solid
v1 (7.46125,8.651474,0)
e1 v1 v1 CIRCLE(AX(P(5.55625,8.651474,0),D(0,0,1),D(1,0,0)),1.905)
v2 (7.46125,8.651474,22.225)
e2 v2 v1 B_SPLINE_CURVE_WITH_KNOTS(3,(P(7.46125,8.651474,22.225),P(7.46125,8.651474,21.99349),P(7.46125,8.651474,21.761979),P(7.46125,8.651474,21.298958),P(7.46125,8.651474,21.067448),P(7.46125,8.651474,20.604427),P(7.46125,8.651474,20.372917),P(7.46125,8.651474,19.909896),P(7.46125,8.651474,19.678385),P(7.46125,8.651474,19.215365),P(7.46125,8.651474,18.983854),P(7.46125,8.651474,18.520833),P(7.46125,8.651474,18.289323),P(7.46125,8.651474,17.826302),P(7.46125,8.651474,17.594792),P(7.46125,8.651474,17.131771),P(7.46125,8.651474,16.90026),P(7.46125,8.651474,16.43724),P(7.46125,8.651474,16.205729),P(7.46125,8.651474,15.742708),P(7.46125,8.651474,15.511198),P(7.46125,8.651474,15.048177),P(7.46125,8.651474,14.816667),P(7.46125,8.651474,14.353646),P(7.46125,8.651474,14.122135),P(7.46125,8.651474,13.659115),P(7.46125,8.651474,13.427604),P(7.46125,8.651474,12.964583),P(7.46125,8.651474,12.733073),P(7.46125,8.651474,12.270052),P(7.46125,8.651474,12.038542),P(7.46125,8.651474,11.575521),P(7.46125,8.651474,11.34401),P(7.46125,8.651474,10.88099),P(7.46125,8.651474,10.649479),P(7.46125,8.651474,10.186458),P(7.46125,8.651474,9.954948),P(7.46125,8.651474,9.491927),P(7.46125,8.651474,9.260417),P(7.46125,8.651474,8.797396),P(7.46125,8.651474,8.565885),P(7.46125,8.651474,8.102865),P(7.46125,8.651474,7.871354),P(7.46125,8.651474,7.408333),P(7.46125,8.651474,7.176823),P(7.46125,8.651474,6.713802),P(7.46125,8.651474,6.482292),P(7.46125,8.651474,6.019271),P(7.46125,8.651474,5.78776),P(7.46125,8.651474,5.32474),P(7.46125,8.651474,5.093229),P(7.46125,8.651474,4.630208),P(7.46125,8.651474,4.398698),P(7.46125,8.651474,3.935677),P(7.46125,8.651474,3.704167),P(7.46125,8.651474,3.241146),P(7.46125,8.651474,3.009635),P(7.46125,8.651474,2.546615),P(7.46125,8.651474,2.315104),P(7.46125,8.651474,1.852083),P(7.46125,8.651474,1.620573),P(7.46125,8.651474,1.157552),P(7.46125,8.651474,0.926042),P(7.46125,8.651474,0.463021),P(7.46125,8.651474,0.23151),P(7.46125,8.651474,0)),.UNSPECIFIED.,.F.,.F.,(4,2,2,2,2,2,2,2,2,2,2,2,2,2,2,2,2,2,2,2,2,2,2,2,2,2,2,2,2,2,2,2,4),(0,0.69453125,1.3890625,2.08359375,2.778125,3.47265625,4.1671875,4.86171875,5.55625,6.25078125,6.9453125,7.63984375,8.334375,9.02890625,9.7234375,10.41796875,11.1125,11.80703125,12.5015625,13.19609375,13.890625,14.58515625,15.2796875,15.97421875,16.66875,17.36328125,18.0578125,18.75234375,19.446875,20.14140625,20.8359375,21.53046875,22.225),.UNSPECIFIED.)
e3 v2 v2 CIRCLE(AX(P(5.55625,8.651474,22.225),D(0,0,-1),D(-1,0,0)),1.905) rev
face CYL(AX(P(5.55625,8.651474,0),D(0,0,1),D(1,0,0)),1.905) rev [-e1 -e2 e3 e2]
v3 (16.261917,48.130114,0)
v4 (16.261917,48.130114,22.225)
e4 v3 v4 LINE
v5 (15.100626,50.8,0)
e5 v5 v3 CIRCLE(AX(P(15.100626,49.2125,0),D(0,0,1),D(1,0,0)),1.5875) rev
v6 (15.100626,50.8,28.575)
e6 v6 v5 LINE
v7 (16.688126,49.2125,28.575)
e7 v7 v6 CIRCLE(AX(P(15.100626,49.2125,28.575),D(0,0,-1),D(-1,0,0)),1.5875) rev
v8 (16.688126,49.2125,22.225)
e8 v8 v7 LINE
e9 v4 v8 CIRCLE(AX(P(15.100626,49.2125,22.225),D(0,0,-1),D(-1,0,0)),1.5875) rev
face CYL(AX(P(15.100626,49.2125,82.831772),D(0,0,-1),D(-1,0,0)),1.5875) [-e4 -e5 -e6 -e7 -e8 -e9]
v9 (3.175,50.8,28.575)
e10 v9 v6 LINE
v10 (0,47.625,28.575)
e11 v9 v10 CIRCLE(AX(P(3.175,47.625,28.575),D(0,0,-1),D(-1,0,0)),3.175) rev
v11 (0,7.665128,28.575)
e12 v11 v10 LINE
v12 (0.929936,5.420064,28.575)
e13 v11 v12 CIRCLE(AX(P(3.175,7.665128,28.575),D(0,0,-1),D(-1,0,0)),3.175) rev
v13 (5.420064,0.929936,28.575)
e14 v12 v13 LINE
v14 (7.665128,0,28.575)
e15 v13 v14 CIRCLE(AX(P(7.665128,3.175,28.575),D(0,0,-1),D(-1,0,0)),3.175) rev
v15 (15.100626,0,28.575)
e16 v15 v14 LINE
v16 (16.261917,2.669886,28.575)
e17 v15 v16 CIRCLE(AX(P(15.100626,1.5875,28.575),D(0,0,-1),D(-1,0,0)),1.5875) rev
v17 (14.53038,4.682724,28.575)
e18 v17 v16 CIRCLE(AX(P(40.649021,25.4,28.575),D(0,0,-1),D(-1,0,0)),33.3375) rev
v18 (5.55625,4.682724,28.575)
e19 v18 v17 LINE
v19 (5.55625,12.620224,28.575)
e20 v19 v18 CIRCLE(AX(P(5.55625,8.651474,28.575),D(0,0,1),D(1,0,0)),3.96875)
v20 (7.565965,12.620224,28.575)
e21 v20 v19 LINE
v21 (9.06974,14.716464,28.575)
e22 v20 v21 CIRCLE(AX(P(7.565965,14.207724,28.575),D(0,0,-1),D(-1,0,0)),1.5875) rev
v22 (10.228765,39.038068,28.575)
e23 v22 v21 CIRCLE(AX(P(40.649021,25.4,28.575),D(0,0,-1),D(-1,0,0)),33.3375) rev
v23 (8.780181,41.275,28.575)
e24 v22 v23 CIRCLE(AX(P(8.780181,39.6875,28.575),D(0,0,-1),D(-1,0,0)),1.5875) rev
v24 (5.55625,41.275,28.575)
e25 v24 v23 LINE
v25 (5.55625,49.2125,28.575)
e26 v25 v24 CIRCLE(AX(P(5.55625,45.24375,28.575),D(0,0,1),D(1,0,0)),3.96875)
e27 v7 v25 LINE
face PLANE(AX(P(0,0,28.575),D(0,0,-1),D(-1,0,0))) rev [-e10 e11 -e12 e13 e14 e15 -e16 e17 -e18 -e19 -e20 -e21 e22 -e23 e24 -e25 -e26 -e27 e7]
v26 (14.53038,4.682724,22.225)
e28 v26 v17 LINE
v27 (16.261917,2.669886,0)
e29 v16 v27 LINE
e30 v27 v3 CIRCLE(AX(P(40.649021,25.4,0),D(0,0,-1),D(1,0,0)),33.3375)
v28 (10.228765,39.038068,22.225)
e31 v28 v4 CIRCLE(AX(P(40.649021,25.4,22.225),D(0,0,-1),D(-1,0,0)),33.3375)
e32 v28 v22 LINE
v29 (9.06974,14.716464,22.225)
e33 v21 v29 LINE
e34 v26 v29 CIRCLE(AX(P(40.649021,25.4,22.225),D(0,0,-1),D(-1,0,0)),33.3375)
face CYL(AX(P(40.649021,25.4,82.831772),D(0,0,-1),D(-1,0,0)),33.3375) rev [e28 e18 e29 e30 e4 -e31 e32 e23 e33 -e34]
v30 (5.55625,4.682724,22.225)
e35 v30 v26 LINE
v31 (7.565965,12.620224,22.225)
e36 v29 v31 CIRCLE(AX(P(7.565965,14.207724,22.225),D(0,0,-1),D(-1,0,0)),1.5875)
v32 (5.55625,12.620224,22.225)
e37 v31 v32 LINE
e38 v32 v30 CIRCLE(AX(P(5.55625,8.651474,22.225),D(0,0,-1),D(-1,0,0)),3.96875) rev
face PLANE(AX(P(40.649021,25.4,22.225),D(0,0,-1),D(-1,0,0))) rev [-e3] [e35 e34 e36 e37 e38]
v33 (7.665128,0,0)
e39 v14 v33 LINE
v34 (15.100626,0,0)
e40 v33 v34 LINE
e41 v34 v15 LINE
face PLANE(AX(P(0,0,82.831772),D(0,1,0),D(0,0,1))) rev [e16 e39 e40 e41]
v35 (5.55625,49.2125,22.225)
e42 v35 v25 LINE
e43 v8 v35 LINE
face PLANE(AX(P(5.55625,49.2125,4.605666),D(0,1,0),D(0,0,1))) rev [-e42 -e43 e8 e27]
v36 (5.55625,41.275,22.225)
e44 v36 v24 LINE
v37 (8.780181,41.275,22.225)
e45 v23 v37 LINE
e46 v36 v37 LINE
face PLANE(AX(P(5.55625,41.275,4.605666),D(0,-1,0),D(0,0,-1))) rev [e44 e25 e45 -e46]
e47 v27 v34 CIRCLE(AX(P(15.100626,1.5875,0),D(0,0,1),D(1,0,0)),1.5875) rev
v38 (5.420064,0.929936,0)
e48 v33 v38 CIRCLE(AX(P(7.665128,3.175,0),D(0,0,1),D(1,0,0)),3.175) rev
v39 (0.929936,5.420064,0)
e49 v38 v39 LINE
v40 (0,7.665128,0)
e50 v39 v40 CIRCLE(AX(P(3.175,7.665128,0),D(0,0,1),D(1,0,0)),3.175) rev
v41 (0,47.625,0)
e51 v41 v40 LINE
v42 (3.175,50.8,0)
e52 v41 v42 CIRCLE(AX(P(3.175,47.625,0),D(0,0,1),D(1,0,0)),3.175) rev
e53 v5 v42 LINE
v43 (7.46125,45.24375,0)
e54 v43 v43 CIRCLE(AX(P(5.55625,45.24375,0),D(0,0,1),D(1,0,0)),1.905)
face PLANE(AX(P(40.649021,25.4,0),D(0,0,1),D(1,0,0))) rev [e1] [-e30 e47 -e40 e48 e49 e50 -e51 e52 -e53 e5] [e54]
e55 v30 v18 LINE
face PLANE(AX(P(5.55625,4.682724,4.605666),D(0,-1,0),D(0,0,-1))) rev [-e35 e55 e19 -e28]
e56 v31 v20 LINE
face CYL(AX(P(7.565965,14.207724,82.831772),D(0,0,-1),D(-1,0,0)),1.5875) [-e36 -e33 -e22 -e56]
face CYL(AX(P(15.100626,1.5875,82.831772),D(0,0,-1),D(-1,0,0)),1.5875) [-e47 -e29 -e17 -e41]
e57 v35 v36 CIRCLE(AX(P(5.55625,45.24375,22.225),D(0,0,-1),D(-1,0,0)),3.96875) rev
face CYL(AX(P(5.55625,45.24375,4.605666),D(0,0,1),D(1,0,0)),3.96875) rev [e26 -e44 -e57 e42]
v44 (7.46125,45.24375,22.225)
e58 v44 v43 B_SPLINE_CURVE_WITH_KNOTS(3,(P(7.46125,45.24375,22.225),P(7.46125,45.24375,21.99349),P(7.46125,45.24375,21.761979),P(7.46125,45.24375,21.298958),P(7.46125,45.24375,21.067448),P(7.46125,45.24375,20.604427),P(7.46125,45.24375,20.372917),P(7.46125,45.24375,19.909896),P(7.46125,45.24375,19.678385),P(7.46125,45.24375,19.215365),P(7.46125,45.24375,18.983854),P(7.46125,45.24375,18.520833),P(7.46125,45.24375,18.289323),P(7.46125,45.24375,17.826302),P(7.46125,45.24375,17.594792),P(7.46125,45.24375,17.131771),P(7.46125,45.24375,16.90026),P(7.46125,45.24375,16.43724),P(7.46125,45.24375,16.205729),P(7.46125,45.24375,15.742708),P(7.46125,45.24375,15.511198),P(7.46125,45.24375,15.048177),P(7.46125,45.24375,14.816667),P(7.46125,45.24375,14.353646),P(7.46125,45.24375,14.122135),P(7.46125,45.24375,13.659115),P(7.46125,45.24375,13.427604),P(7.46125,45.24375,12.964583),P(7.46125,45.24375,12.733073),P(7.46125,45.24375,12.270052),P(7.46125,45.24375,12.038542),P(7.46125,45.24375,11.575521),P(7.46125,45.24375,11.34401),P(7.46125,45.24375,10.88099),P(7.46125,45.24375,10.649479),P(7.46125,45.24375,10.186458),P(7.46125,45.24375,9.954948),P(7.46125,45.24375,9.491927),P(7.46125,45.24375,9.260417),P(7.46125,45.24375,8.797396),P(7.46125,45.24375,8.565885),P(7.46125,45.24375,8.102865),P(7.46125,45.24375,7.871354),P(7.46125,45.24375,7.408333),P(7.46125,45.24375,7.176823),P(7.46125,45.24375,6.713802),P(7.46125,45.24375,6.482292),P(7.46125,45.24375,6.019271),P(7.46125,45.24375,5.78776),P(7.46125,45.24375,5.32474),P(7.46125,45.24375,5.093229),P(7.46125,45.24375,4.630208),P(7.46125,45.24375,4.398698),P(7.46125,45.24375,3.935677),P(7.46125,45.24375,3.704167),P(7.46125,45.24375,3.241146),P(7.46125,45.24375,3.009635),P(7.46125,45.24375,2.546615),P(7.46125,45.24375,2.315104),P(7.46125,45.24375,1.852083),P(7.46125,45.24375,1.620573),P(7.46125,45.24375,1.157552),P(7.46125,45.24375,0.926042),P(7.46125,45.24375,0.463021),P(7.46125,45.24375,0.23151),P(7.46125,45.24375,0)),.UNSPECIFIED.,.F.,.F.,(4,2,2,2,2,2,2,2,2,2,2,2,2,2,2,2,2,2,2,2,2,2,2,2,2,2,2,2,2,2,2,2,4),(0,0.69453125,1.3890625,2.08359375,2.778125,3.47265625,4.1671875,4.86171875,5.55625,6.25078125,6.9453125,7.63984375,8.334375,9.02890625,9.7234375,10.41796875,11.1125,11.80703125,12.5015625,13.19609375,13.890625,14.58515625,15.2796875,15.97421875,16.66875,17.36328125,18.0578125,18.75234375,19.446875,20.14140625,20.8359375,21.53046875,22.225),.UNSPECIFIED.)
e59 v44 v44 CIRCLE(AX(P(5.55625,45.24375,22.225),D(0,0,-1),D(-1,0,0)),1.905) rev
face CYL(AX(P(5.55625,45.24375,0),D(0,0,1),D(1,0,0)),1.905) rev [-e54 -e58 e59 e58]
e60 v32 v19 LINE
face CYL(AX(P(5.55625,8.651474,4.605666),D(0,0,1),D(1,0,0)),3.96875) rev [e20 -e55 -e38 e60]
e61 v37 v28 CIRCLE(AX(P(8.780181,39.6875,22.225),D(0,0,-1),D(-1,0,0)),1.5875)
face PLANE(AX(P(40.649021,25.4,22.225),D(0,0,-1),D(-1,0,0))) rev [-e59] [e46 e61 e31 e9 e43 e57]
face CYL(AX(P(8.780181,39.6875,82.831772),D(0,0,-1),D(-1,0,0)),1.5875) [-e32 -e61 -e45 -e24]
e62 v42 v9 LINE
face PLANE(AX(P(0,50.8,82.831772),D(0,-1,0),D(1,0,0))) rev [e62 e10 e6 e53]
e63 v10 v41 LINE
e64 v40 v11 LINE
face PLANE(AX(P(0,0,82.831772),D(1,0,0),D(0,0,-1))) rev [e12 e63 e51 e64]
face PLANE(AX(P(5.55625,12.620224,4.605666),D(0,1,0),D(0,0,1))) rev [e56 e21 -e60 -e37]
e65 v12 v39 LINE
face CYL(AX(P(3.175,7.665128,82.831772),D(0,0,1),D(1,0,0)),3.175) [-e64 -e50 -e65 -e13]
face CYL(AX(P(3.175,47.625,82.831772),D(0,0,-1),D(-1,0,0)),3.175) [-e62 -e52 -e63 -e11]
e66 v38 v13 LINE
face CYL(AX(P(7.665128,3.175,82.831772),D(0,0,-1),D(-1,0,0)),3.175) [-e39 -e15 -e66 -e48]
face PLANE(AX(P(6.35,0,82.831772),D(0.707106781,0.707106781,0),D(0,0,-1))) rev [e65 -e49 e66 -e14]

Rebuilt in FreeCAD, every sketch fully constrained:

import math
import FreeCAD as App
import Part
import Sketcher

V = App.Vector
Q = App.Units.Quantity


def edges_at(feature, points):
    """Names of the edges that pass closest to the given points."""
    edges = feature.Shape.Edges
    near = lambda p: min(range(len(edges)), key=lambda i: edges[i].distToShape(Part.Vertex(*p))[0])
    return sorted({f"Edge{near(p) + 1}" for p in points})

doc = App.newDocument("Part")
body = doc.addObject("PartDesign::Body", "Body")

sketch1 = body.newObject("Sketcher::SketchObject", "Sketch")
sketch1.AttachmentSupport = (doc.getObject("XY_Plane"), [""])
sketch1.MapMode = "FlatFace"
sketch1.addGeometry([
    Part.LineSegment(V(0, 0, 0), V(19, 0, 0)),
    Part.ArcOfCircle(Part.Circle(V(41, 25, 0), V(0, 0, 1), 33), math.radians(130), math.radians(230)),
    Part.LineSegment(V(19, 51, 0), V(0, 51, 0)),
    Part.LineSegment(V(0, 51, 0), V(0, 0, 0)),
], False)
sketch1.addConstraint([
    Sketcher.Constraint("Coincident", 0, 2, 1, 2),
    Sketcher.Constraint("Coincident", 1, 1, 2, 1),
    Sketcher.Constraint("Coincident", 2, 2, 3, 1),
    Sketcher.Constraint("Coincident", 3, 2, 0, 1),
    Sketcher.Constraint("Horizontal", 0),
    Sketcher.Constraint("Horizontal", 2),
    Sketcher.Constraint("Vertical", 3),
    Sketcher.Constraint("Coincident", 3, 2, -1, 1),
    Sketcher.Constraint("Vertical", 0, 2, 1, 1),
    Sketcher.Constraint("DistanceY", 3, 2, 3, 1, Q("2 in")),
    Sketcher.Constraint("Radius", 1, Q("1.3125 in")),
    Sketcher.Constraint("DistanceX", 0, 1, 0, 2, 19.056687),
])
pad1 = body.newObject("PartDesign::Pad", "Pad")
pad1.Profile = sketch1
pad1.Length = Q("1.125 in")
doc.recompute()

chamfer = body.newObject("PartDesign::Chamfer", "Chamfer")
chamfer.Base = (pad1, edges_at(pad1, [(0, 0, 14.287)]))
chamfer.Size = Q("0.25 in")

sketch2 = body.newObject("Sketcher::SketchObject", "Sketch001")
sketch2.AttachmentSupport = (doc.getObject("XY_Plane"), [""])
sketch2.MapMode = "FlatFace"
sketch2.AttachmentOffset = App.Placement(V(0, 0, 1.125 * 25.4), App.Rotation())
sketch2.addGeometry([
    Part.Circle(V(5.6, 45.2, 0), V(0, 0, 1), 1.9),
    Part.Circle(V(5.6, 8.7, 0), V(0, 0, 1), 1.9),
], False)
sketch2.addConstraint([
    Sketcher.Constraint("Equal", 0, 1),
    Sketcher.Constraint("Vertical", 0, 3, 1, 3),
    Sketcher.Constraint("Diameter", 0, Q("0.15 in")),
    Sketcher.Constraint("DistanceX", -1, 1, 0, 3, Q("0.21875 in")),
    Sketcher.Constraint("DistanceY", -1, 1, 0, 3, Q("1.78125 in")),
    Sketcher.Constraint("DistanceY", -1, 1, 1, 3, 8.651474),
])
pocket1 = body.newObject("PartDesign::Pocket", "Pocket")
pocket1.Profile = sketch2
pocket1.Type = "ThroughAll"
doc.recompute()

fillet = body.newObject("PartDesign::Fillet", "Fillet")
fillet.Base = (pocket1, edges_at(pocket1, [(0, 50.8, 14.287), (6.35, 0, 14.287), (0, 6.35, 14.287)]))
fillet.Radius = Q("0.125 in")

sketch3 = body.newObject("Sketcher::SketchObject", "Sketch002")
sketch3.AttachmentSupport = (doc.getObject("XY_Plane"), [""])
sketch3.MapMode = "FlatFace"
sketch3.AttachmentOffset = App.Placement(V(0, 0, 0.875 * 25.4), App.Rotation())
sketch3.addGeometry([
    Part.LineSegment(V(17.3, 49.2, 0), V(5.6, 49.2, 0)),
    Part.ArcOfCircle(Part.Circle(V(5.6, 45.2, 0), V(0, 0, 1), 4), math.radians(90), math.radians(270)),
    Part.LineSegment(V(5.6, 41.3, 0), V(11.3, 41.3, 0)),
    Part.ArcOfCircle(Part.Circle(V(40.6, 25.4, 0), V(0, 0, 1), 33.3), math.radians(134.42), math.radians(151.56)),
    Part.LineSegment(V(9.9, 12.6, 0), V(5.6, 12.6, 0)),
    Part.ArcOfCircle(Part.Circle(V(5.6, 8.7, 0), V(0, 0, 1), 4), math.radians(90), math.radians(270)),
    Part.LineSegment(V(5.6, 4.7, 0), V(14.5, 4.7, 0)),
    Part.ArcOfCircle(Part.Circle(V(40.6, 25.4, 0), V(0, 0, 1), 33.3), math.radians(-157.46), math.radians(-141.58)),
], False)
sketch3.addConstraint([
    Sketcher.Constraint("Tangent", 0, 2, 1, 1),
    Sketcher.Constraint("Tangent", 1, 2, 2, 1),
    Sketcher.Constraint("Coincident", 2, 2, 3, 2),
    Sketcher.Constraint("Coincident", 3, 1, 0, 1),
    Sketcher.Constraint("Tangent", 4, 2, 5, 1),
    Sketcher.Constraint("Tangent", 5, 2, 6, 1),
    Sketcher.Constraint("Coincident", 6, 2, 7, 2),
    Sketcher.Constraint("Coincident", 7, 1, 4, 1),
    Sketcher.Constraint("Horizontal", 0),
    Sketcher.Constraint("Horizontal", 2),
    Sketcher.Constraint("Horizontal", 4),
    Sketcher.Constraint("Horizontal", 6),
    Sketcher.Constraint("Coincident", 7, 3, 3, 3),
    Sketcher.Constraint("Equal", 1, 5),
    Sketcher.Constraint("Equal", 3, 7),
    Sketcher.Constraint("Vertical", 1, 3, 5, 3),
    Sketcher.Constraint("DistanceY", -1, 1, 3, 3, Q("1 in")),
    Sketcher.Constraint("Radius", 1, Q("0.15625 in")),
    Sketcher.Constraint("Radius", 3, Q("1.3125 in")),
    Sketcher.Constraint("DistanceX", -1, 1, 1, 3, Q("0.21875 in")),
    Sketcher.Constraint("DistanceY", -1, 1, 1, 3, Q("1.78125 in")),
    Sketcher.Constraint("DistanceX", 2, 1, 2, 2, 5.777702),
    Sketcher.Constraint("DistanceX", 6, 1, 6, 2, 8.97413),
])
pocket2 = body.newObject("PartDesign::Pocket", "Pocket001")
pocket2.Profile = sketch3
pocket2.Length = Q("0.25 in")
pocket2.Reversed = True
doc.recompute()

fillet2 = body.newObject("PartDesign::Fillet", "Fillet001")
fillet2.Base = (pocket2, edges_at(pocket2, [(19.057, 0, 14.287), (19.057, 50.8, 14.287)]))
fillet2.Radius = Q("0.0625 in")
doc.recompute()

fillet3 = body.newObject("PartDesign::Fillet", "Fillet002")
fillet3.Base = (fillet2, edges_at(fillet2, [(11.334, 41.275, 25.4), (9.858, 12.62, 25.4)]))
fillet3.Radius = Q("0.0625 in")

doc.recompute()
